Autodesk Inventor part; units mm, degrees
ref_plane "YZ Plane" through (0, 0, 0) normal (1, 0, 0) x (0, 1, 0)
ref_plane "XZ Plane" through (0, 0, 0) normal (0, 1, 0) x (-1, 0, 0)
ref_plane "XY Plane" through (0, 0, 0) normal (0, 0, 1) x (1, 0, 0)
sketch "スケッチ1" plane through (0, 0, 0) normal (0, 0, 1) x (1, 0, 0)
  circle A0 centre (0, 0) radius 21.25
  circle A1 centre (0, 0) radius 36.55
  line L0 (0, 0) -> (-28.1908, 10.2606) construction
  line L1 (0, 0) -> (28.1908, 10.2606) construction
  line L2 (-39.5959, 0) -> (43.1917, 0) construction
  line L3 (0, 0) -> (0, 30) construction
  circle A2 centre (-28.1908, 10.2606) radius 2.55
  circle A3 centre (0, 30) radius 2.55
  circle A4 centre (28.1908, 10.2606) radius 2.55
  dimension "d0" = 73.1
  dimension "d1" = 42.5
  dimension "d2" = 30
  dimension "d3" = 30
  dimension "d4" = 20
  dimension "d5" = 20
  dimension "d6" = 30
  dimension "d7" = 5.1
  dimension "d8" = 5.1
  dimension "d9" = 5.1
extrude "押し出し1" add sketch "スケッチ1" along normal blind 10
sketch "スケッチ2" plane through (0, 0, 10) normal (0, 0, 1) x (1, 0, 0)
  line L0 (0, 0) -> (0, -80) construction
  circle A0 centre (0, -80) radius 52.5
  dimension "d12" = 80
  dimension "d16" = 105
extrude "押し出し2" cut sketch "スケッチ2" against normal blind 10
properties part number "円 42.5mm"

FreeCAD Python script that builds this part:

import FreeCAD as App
import Part
import Sketcher

V = App.Vector
Q = App.Units.Quantity

doc = App.newDocument("Part")
body = doc.addObject("PartDesign::Body", "Body")

sketch1 = body.newObject("Sketcher::SketchObject", "Sketch")
sketch1.AttachmentSupport = (doc.getObject("XY_Plane"), [""])
sketch1.MapMode = "FlatFace"
sketch1.addGeometry([
    Part.Circle(V(0, 0, 0), V(0, 0, 1), 36.5),
    Part.Circle(V(-28.2, 10.3, 0), V(0, 0, 1), 2.5),
    Part.Circle(V(0, 0, 0), V(0, 0, 1), 21.2),
    Part.Circle(V(28.2, 10.3, 0), V(0, 0, 1), 2.5),
    Part.Circle(V(0, 30, 0), V(0, 0, 1), 2.5),
], False)
sketch1.addConstraint([
    Sketcher.Constraint("Coincident", 0, 3, -1, 1),
    Sketcher.Constraint("Coincident", 2, 3, -1, 1),
    Sketcher.Constraint("Equal", 1, 3),
    Sketcher.Constraint("Equal", 3, 4),
    Sketcher.Constraint("Symmetric", 1, 3, 3, 3, -2),
    Sketcher.Constraint("PointOnObject", 4, 3, -2),
    Sketcher.Constraint("Diameter", 0, Q("73.1 mm")),
    Sketcher.Constraint("Diameter", 1, Q("5.1 mm")),
    Sketcher.Constraint("Diameter", 2, Q("42.5 mm")),
    Sketcher.Constraint("DistanceY", -1, 1, 4, 3, Q("30 mm")),
    Sketcher.Constraint("DistanceX", 1, 3, -1, 1, Q("28.1908 mm")),
    Sketcher.Constraint("DistanceY", -1, 1, 1, 3, Q("10.2606 mm")),
])
pad1 = body.newObject("PartDesign::Pad", "Pad")
pad1.Profile = sketch1
pad1.Length = 10

sketch2 = body.newObject("Sketcher::SketchObject", "Sketch001")
sketch2.AttachmentSupport = (doc.getObject("XY_Plane"), [""])
sketch2.MapMode = "FlatFace"
sketch2.AttachmentOffset = App.Placement(V(0, 0, 10), App.Rotation())
sketch2.addGeometry(Part.Circle(V(0, -80, 0), V(0, 0, 1), 52), False)
sketch2.addConstraint([
    Sketcher.Constraint("PointOnObject", 0, 3, -2),
    Sketcher.Constraint("Diameter", 0, Q("105 mm")),
    Sketcher.Constraint("DistanceY", 0, 3, -1, 1, Q("80 mm")),
])
pocket1 = body.newObject("PartDesign::Pocket", "Pocket")
pocket1.Profile = sketch2
pocket1.Length = 10

doc.recompute()
